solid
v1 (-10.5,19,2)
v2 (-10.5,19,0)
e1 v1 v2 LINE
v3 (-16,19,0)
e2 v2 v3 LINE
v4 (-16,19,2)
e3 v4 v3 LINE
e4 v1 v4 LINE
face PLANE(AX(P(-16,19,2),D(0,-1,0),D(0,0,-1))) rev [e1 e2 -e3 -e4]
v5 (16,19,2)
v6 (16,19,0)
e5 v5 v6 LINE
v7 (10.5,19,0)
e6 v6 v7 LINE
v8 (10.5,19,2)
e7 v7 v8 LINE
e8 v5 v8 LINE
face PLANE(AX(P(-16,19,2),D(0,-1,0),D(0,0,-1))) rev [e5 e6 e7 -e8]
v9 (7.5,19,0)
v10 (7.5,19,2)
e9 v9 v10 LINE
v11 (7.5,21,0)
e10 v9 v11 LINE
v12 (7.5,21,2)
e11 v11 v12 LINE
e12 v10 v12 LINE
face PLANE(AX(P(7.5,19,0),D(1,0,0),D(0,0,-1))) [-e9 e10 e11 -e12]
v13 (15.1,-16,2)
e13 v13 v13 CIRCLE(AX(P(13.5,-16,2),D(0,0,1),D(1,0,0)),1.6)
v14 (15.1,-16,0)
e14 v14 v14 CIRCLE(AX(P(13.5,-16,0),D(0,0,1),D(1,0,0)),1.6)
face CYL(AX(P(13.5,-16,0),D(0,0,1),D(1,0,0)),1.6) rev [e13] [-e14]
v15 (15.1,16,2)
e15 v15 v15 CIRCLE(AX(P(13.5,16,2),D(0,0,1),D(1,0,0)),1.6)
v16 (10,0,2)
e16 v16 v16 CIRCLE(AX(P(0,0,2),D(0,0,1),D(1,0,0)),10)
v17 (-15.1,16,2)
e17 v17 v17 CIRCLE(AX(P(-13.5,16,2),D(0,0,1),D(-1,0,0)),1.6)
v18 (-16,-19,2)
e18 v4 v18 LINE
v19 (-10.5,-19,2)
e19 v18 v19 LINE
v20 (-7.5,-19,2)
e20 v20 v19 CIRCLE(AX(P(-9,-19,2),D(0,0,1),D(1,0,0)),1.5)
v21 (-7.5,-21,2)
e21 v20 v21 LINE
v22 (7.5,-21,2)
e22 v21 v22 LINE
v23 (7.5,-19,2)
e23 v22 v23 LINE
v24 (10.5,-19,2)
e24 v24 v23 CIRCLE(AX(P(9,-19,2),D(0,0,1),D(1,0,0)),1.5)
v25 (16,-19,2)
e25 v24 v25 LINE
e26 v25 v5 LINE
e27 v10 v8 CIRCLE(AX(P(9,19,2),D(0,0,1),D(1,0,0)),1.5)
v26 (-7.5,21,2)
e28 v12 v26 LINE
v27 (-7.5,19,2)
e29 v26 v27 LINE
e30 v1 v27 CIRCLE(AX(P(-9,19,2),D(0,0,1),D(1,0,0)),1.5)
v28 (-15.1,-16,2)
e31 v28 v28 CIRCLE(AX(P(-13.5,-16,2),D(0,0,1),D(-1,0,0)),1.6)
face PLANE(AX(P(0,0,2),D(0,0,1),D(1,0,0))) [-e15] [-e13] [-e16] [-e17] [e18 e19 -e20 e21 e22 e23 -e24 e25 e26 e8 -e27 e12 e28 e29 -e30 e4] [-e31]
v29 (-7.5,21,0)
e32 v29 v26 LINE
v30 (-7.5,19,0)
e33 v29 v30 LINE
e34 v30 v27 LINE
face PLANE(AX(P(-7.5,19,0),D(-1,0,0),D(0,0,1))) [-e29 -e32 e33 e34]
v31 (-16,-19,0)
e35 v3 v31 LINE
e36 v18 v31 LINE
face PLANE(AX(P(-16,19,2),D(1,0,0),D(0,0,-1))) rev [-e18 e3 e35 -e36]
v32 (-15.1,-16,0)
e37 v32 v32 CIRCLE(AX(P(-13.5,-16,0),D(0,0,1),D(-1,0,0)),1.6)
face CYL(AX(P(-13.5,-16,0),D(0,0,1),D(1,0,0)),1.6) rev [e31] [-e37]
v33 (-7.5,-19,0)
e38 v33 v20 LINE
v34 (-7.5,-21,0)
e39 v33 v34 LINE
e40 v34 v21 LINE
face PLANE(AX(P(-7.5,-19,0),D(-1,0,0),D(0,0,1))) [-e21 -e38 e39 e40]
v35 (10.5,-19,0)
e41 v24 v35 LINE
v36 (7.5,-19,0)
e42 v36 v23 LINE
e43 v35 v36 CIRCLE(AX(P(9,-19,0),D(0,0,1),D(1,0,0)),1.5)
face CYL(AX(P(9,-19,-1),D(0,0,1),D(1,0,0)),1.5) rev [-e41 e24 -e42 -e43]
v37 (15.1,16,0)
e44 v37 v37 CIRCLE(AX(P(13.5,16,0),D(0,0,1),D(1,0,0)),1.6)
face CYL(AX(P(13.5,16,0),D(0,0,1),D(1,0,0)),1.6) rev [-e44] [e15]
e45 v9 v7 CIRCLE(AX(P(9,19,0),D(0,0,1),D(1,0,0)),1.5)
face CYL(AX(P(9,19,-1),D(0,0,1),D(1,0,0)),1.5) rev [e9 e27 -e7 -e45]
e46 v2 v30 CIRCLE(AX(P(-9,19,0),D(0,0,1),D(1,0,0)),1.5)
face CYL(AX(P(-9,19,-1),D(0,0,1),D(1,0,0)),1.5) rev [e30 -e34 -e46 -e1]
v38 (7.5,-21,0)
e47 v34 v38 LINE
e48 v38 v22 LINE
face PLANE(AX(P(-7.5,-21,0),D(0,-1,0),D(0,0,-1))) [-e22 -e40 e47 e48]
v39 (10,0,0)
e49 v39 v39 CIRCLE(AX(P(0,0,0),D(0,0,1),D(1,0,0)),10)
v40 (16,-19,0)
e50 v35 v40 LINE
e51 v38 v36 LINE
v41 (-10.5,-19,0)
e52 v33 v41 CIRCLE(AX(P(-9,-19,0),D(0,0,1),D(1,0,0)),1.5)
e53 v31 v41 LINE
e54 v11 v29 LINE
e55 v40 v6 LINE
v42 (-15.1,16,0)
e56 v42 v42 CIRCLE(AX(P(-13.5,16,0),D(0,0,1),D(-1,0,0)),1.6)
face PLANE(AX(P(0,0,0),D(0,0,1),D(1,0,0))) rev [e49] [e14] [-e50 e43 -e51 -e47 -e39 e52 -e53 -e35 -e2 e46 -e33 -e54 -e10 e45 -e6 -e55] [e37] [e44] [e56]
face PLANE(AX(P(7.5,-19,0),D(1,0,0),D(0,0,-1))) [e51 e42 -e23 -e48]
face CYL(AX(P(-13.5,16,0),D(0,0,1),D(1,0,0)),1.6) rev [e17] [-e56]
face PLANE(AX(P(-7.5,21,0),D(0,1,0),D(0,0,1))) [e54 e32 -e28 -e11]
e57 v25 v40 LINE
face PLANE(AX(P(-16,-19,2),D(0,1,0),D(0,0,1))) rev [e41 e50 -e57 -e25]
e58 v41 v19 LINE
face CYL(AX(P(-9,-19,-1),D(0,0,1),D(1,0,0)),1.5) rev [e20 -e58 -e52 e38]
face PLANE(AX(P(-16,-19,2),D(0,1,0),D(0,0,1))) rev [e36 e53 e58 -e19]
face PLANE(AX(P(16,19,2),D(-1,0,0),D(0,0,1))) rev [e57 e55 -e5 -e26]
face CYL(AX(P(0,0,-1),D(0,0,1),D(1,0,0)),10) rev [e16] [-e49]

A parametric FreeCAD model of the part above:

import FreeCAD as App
import Part
import Sketcher
Q = App.Units.Quantity

doc = App.newDocument("Part")
body = doc.addObject("PartDesign::Body", "Body")

# Sketch on XY plane
sketch1 = doc.addObject("Sketcher::SketchObject", "Sketch")
body.addObject(sketch1)
sketch1.AttachmentSupport = (doc.XY_Plane, [""])
sketch1.MapMode = "FlatFace"
sketch1.addGeometry([
    Part.LineSegment(App.Vector(-16, 19, 0), App.Vector(-16, -19, 0)),
    Part.LineSegment(App.Vector(-16, -19, 0), App.Vector(16, -19, 0)),
    Part.LineSegment(App.Vector(16, -19, 0), App.Vector(16, 19, 0)),
    Part.LineSegment(App.Vector(16, 19, 0), App.Vector(-16, 19, 0)),
], False)
sketch1.addConstraint([
    Sketcher.Constraint("Coincident", 0, 2, 1, 1),
    Sketcher.Constraint("Coincident", 1, 2, 2, 1),
    Sketcher.Constraint("Coincident", 2, 2, 3, 1),
    Sketcher.Constraint("Coincident", 3, 2, 0, 1),
    Sketcher.Constraint("Vertical", 0),
    Sketcher.Constraint("Horizontal", 1),
    Sketcher.Constraint("Vertical", 2),
    Sketcher.Constraint("Horizontal", 3),
    Sketcher.Constraint("Symmetric", 0, 2, 2, 2, -1, 1),
    Sketcher.Constraint("DistanceX", 1, 1, 1, 2, Q("32 mm")),
    Sketcher.Constraint("DistanceY", 0, 2, 0, 1, Q("38 mm")),
])
pad1 = doc.addObject("PartDesign::Pad", "Pad")
body.addObject(pad1)
pad1.Profile = sketch1
pad1.Length = 2

# Sketch on XY plane
sketch2 = doc.addObject("Sketcher::SketchObject", "Sketch001")
body.addObject(sketch2)
sketch2.AttachmentSupport = (doc.XY_Plane, [""])
sketch2.MapMode = "FlatFace"
sketch2.AttachmentOffset = App.Placement(App.Vector(0, 0, 2), App.Rotation())
sketch2.addGeometry(Part.Circle(App.Vector(0, 0, 0), App.Vector(0, 0, 1), 10), False)
sketch2.addConstraint([
    Sketcher.Constraint("Coincident", 0, 3, -1, 1),
    Sketcher.Constraint("Diameter", 0, Q("20 mm")),
])
pocket1 = doc.addObject("PartDesign::Pocket", "Pocket")
body.addObject(pocket1)
pocket1.Profile = sketch2
pocket1.Length = 3

# Sketch on XY plane
sketch3 = doc.addObject("Sketcher::SketchObject", "Sketch002")
body.addObject(sketch3)
sketch3.AttachmentSupport = (doc.XY_Plane, [""])
sketch3.MapMode = "FlatFace"
sketch3.AttachmentOffset = App.Placement(App.Vector(0, 0, 2), App.Rotation())
sketch3.addGeometry([
    Part.LineSegment(App.Vector(-7.5, 21, 0), App.Vector(-7.5, 19, 0)),  # 0
    Part.LineSegment(App.Vector(-7.5, 19, 0), App.Vector(7.5, 19, 0)),  # 1
    Part.LineSegment(App.Vector(7.5, 19, 0), App.Vector(7.5, 21, 0)),  # 2
    Part.LineSegment(App.Vector(7.5, 21, 0), App.Vector(-7.5, 21, 0)),  # 3
    Part.LineSegment(App.Vector(-7.5, -19, 0), App.Vector(-7.5, -21, 0)),  # 4
    Part.LineSegment(App.Vector(-7.5, -21, 0), App.Vector(7.5, -21, 0)),  # 5
    Part.LineSegment(App.Vector(7.5, -21, 0), App.Vector(7.5, -19, 0)),  # 6
    Part.LineSegment(App.Vector(7.5, -19, 0), App.Vector(-7.5, -19, 0)),  # 7
], False)
sketch3.addConstraint([
    Sketcher.Constraint("Coincident", 0, 2, 1, 1),
    Sketcher.Constraint("Coincident", 1, 2, 2, 1),
    Sketcher.Constraint("Coincident", 2, 2, 3, 1),
    Sketcher.Constraint("Coincident", 3, 2, 0, 1),
    Sketcher.Constraint("Coincident", 4, 2, 5, 1),
    Sketcher.Constraint("Coincident", 5, 2, 6, 1),
    Sketcher.Constraint("Coincident", 6, 2, 7, 1),
    Sketcher.Constraint("Coincident", 7, 2, 4, 1),
    Sketcher.Constraint("Vertical", 0),
    Sketcher.Constraint("Horizontal", 1),
    Sketcher.Constraint("Vertical", 2),
    Sketcher.Constraint("Horizontal", 3),
    Sketcher.Constraint("Vertical", 4),
    Sketcher.Constraint("Horizontal", 5),
    Sketcher.Constraint("Vertical", 6),
    Sketcher.Constraint("Horizontal", 7),
    Sketcher.Constraint("Symmetric", 2, 2, 4, 2, -1, 1),
    Sketcher.Constraint("Symmetric", 0, 2, 6, 2, -1, 1),
    Sketcher.Constraint("Vertical", 3, 2, 4, 2),
    Sketcher.Constraint("DistanceX", 1, 1, 1, 2, Q("15 mm")),
    Sketcher.Constraint("DistanceY", 0, 2, 0, 1, Q("2 mm")),
    Sketcher.Constraint("DistanceY", -1, 1, 0, 2, Q("19 mm")),
])
pad2 = doc.addObject("PartDesign::Pad", "Pad001")
body.addObject(pad2)
pad2.Profile = sketch3
pad2.Length = 2
pad2.Reversed = True

# Sketch on XY plane
sketch4 = doc.addObject("Sketcher::SketchObject", "Sketch003")
body.addObject(sketch4)
sketch4.AttachmentSupport = (doc.XY_Plane, [""])
sketch4.MapMode = "FlatFace"
sketch4.AttachmentOffset = App.Placement(App.Vector(0, 0, 2), App.Rotation())
sketch4.addGeometry([
    Part.Circle(App.Vector(-9, 19, 0), App.Vector(0, 0, 1), 1.5),
    Part.Circle(App.Vector(-9, -19, 0), App.Vector(0, 0, 1), 1.5),
    Part.Circle(App.Vector(9, 19, 0), App.Vector(0, 0, 1), 1.5),
    Part.Circle(App.Vector(9, -19, 0), App.Vector(0, 0, 1), 1.5),
], False)
sketch4.addConstraint([
    Sketcher.Constraint("Equal", 0, 1),
    Sketcher.Constraint("Equal", 1, 2),
    Sketcher.Constraint("Equal", 2, 3),
    Sketcher.Constraint("Symmetric", 1, 3, 2, 3, -1, 1),
    Sketcher.Constraint("Symmetric", 0, 3, 3, 3, -1, 1),
    Sketcher.Constraint("Symmetric", 0, 3, 2, 3, -2),
    Sketcher.Constraint("Diameter", 0, Q("3 mm")),
    Sketcher.Constraint("DistanceX", 0, 3, -1, 1, Q("9 mm")),
    Sketcher.Constraint("DistanceY", -1, 1, 0, 3, Q("19 mm")),
])
pocket2 = doc.addObject("PartDesign::Pocket", "Pocket001")
body.addObject(pocket2)
pocket2.Profile = sketch4
pocket2.Length = 3

# Sketch on XY plane
sketch5 = doc.addObject("Sketcher::SketchObject", "Sketch004")
body.addObject(sketch5)
sketch5.AttachmentSupport = (doc.XY_Plane, [""])
sketch5.MapMode = "FlatFace"
sketch5.AttachmentOffset = App.Placement(App.Vector(0, 0, 2), App.Rotation())
sketch5.addGeometry([
    Part.Circle(App.Vector(13.5, 16, 0), App.Vector(0, 0, 1), 1.6),
    Part.Circle(App.Vector(13.5, -16, 0), App.Vector(0, 0, 1), 1.6),
    Part.Circle(App.Vector(-13.5, -16, 0), App.Vector(0, 0, 1), 1.6),
    Part.Circle(App.Vector(-13.5, 16, 0), App.Vector(0, 0, 1), 1.6),
], False)
sketch5.addConstraint([
    Sketcher.Constraint("Equal", 0, 1),
    Sketcher.Constraint("Equal", 1, 2),
    Sketcher.Constraint("Equal", 2, 3),
    Sketcher.Constraint("Symmetric", 0, 3, 2, 3, -1, 1),
    Sketcher.Constraint("Symmetric", 1, 3, 3, 3, -1, 1),
    Sketcher.Constraint("Symmetric", 1, 3, 2, 3, -2),
    Sketcher.Constraint("Diameter", 0, Q("3.2 mm")),
    Sketcher.Constraint("DistanceY", -1, 1, 0, 3, Q("16 mm")),
    Sketcher.Constraint("DistanceX", 2, 3, 1, 3, Q("27 mm")),
])
pocket3 = doc.addObject("PartDesign::Pocket", "Pocket002")
body.addObject(pocket3)
pocket3.Profile = sketch5
pocket3.Type = "ThroughAll"

doc.recompute()
